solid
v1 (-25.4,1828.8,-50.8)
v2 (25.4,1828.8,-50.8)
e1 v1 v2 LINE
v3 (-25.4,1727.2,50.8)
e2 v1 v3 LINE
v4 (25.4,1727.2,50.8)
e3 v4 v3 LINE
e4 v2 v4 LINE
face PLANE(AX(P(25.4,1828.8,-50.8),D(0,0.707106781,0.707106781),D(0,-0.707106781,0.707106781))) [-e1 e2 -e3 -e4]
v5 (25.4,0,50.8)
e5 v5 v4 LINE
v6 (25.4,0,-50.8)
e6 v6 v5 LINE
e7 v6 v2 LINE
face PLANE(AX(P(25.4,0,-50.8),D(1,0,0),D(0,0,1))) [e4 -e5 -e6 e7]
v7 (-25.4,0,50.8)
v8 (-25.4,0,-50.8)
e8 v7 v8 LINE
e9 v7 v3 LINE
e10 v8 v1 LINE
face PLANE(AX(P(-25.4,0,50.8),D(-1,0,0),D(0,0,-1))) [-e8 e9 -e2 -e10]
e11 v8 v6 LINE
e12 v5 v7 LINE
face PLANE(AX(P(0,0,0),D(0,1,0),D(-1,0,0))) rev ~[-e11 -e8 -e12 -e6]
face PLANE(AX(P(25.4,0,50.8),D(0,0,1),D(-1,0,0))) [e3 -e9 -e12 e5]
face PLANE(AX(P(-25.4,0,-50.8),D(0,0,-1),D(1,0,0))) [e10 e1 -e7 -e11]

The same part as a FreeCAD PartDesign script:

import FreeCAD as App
import Part
import Sketcher
Q = App.Units.Quantity

doc = App.newDocument("Part")
body = doc.addObject("PartDesign::Body", "Body")

# Sketch on XZ plane
sketch1 = body.newObject("Sketcher::SketchObject", "Sketch")
sketch1.AttachmentSupport = (doc.getObject("XZ_Plane"), [""])
sketch1.MapMode = "FlatFace"
sketch1.addGeometry(Part.LineSegment(App.Vector(-25, 51, 0), App.Vector(25, 51, 0)), False)
sketch1.addGeometry(Part.LineSegment(App.Vector(25, 51, 0), App.Vector(25, -51, 0)), False)
sketch1.addGeometry(Part.LineSegment(App.Vector(25, -51, 0), App.Vector(-25, -51, 0)), False)
sketch1.addGeometry(Part.LineSegment(App.Vector(-25, -51, 0), App.Vector(-25, 51, 0)), False)
sketch1.addConstraint(Sketcher.Constraint("Coincident", 0, 2, 1, 1))
sketch1.addConstraint(Sketcher.Constraint("Coincident", 1, 2, 2, 1))
sketch1.addConstraint(Sketcher.Constraint("Coincident", 2, 2, 3, 1))
sketch1.addConstraint(Sketcher.Constraint("Coincident", 3, 2, 0, 1))
sketch1.addConstraint(Sketcher.Constraint("Horizontal", 0))
sketch1.addConstraint(Sketcher.Constraint("Vertical", 1))
sketch1.addConstraint(Sketcher.Constraint("Horizontal", 2))
sketch1.addConstraint(Sketcher.Constraint("Vertical", 3))
sketch1.addConstraint(Sketcher.Constraint("Symmetric", 0, 2, 2, 2, -1, 1))
sketch1.addConstraint(Sketcher.Constraint("DistanceX", 0, 1, 0, 2, Q("2 in")))
sketch1.addConstraint(Sketcher.Constraint("DistanceY", 1, 2, 1, 1, Q("4 in")))
pad1 = body.newObject("PartDesign::Pad", "Pad")
pad1.Profile = sketch1
pad1.Length = Q("72 in")
pad1.Reversed = True

# Sketch on YZ plane
sketch2 = body.newObject("Sketcher::SketchObject", "Sketch001")
sketch2.AttachmentSupport = (doc.getObject("YZ_Plane"), [""])
sketch2.MapMode = "FlatFace"
sketch2.AttachmentOffset = App.Placement(App.Vector(0, 0, 1 * 25.4), App.Rotation())
sketch2.addGeometry(Part.LineSegment(App.Vector(1727, 51, 0), App.Vector(1829, -51, 0)), False)
sketch2.addGeometry(Part.LineSegment(App.Vector(1829, -51, 0), App.Vector(1829, 51, 0)), False)
sketch2.addGeometry(Part.LineSegment(App.Vector(1829, 51, 0), App.Vector(1727, 51, 0)), False)
sketch2.addConstraint(Sketcher.Constraint("Coincident", 0, 2, 1, 1))
sketch2.addConstraint(Sketcher.Constraint("Coincident", 1, 2, 2, 1))
sketch2.addConstraint(Sketcher.Constraint("Coincident", 2, 2, 0, 1))
sketch2.addConstraint(Sketcher.Constraint("Vertical", 1))
sketch2.addConstraint(Sketcher.Constraint("Horizontal", 2))
sketch2.addConstraint(Sketcher.Constraint("Equal", 2, 1))
sketch2.addConstraint(Sketcher.Constraint("DistanceX", 2, 2, 2, 1, Q("4 in")))
sketch2.addConstraint(Sketcher.Constraint("DistanceX", -1, 1, 0, 2, Q("72 in")))
sketch2.addConstraint(Sketcher.Constraint("DistanceY", 0, 2, -1, 1, Q("2 in")))
pocket1 = body.newObject("PartDesign::Pocket", "Pocket")
pocket1.Profile = sketch2
pocket1.Length = Q("2 in")

doc.recompute()
